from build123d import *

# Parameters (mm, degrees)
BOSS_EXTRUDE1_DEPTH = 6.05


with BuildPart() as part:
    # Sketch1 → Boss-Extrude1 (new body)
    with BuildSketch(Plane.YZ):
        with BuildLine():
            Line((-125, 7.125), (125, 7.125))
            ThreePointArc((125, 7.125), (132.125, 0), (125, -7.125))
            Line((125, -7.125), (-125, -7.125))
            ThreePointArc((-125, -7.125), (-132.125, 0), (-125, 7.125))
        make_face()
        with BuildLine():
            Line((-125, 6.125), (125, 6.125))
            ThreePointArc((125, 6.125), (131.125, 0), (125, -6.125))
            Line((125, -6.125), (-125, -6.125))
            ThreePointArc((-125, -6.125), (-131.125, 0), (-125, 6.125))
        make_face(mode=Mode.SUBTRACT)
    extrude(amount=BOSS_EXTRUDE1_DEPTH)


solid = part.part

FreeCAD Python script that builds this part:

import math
import FreeCAD as App
import Part
import Sketcher
Q = App.Units.Quantity

doc = App.newDocument("Part")
body = doc.addObject("PartDesign::Body", "Body")

# Sketch on YZ plane
sketch1 = doc.addObject("Sketcher::SketchObject", "Sketch")
body.addObject(sketch1)
sketch1.AttachmentSupport = (doc.YZ_Plane, [""])
sketch1.MapMode = "FlatFace"
sketch1.addGeometry(Part.LineSegment(App.Vector(125, 7.125, 0), App.Vector(-125, 7.125, 0)), False)
sketch1.addGeometry(Part.ArcOfCircle(Part.Circle(App.Vector(-125, 0, 0), App.Vector(0, 0, 1), 7.125), math.radians(90), math.radians(270)), False)
sketch1.addGeometry(Part.LineSegment(App.Vector(-125, -7.125, 0), App.Vector(125, -7.125, 0)), False)
sketch1.addGeometry(Part.ArcOfCircle(Part.Circle(App.Vector(125, 0, 0), App.Vector(0, 0, 1), 7.125), math.radians(-90), math.radians(90)), False)
sketch1.addGeometry(Part.LineSegment(App.Vector(-125, 6.125, 0), App.Vector(125, 6.125, 0)), False)
sketch1.addGeometry(Part.ArcOfCircle(Part.Circle(App.Vector(125, 0, 0), App.Vector(0, 0, 1), 6.125), math.radians(-90), math.radians(90)), False)
sketch1.addGeometry(Part.LineSegment(App.Vector(125, -6.125, 0), App.Vector(-125, -6.125, 0)), False)
sketch1.addGeometry(Part.ArcOfCircle(Part.Circle(App.Vector(-125, 0, 0), App.Vector(0, 0, 1), 6.125), math.radians(90), math.radians(270)), False)
sketch1.addConstraint(Sketcher.Constraint("Tangent", 0, 2, 1, 1))
sketch1.addConstraint(Sketcher.Constraint("Tangent", 1, 2, 2, 1))
sketch1.addConstraint(Sketcher.Constraint("Tangent", 2, 2, 3, 1))
sketch1.addConstraint(Sketcher.Constraint("Tangent", 3, 2, 0, 1))
sketch1.addConstraint(Sketcher.Constraint("Tangent", 4, 2, 5, 2))
sketch1.addConstraint(Sketcher.Constraint("Tangent", 5, 1, 6, 1))
sketch1.addConstraint(Sketcher.Constraint("Tangent", 6, 2, 7, 2))
sketch1.addConstraint(Sketcher.Constraint("Tangent", 7, 1, 4, 1))
sketch1.addConstraint(Sketcher.Constraint("Horizontal", 0))
sketch1.addConstraint(Sketcher.Constraint("Horizontal", 2))
sketch1.addConstraint(Sketcher.Constraint("Horizontal", 4))
sketch1.addConstraint(Sketcher.Constraint("Horizontal", 6))
sketch1.addConstraint(Sketcher.Constraint("Coincident", 5, 3, 3, 3))
sketch1.addConstraint(Sketcher.Constraint("Symmetric", 1, 3, 3, 3, -1, 1))
sketch1.addConstraint(Sketcher.Constraint("Vertical", 7, 3, 0, 2))
sketch1.addConstraint(Sketcher.Constraint("DistanceX", 0, 2, 0, 1, Q("250 mm")))
sketch1.addConstraint(Sketcher.Constraint("Radius", 1, Q("7.125 mm")))
sketch1.addConstraint(Sketcher.Constraint("Radius", 5, Q("6.125 mm")))
pad1 = doc.addObject("PartDesign::Pad", "Pad")
body.addObject(pad1)
pad1.Profile = sketch1
pad1.Length = 6.05

doc.recompute()
